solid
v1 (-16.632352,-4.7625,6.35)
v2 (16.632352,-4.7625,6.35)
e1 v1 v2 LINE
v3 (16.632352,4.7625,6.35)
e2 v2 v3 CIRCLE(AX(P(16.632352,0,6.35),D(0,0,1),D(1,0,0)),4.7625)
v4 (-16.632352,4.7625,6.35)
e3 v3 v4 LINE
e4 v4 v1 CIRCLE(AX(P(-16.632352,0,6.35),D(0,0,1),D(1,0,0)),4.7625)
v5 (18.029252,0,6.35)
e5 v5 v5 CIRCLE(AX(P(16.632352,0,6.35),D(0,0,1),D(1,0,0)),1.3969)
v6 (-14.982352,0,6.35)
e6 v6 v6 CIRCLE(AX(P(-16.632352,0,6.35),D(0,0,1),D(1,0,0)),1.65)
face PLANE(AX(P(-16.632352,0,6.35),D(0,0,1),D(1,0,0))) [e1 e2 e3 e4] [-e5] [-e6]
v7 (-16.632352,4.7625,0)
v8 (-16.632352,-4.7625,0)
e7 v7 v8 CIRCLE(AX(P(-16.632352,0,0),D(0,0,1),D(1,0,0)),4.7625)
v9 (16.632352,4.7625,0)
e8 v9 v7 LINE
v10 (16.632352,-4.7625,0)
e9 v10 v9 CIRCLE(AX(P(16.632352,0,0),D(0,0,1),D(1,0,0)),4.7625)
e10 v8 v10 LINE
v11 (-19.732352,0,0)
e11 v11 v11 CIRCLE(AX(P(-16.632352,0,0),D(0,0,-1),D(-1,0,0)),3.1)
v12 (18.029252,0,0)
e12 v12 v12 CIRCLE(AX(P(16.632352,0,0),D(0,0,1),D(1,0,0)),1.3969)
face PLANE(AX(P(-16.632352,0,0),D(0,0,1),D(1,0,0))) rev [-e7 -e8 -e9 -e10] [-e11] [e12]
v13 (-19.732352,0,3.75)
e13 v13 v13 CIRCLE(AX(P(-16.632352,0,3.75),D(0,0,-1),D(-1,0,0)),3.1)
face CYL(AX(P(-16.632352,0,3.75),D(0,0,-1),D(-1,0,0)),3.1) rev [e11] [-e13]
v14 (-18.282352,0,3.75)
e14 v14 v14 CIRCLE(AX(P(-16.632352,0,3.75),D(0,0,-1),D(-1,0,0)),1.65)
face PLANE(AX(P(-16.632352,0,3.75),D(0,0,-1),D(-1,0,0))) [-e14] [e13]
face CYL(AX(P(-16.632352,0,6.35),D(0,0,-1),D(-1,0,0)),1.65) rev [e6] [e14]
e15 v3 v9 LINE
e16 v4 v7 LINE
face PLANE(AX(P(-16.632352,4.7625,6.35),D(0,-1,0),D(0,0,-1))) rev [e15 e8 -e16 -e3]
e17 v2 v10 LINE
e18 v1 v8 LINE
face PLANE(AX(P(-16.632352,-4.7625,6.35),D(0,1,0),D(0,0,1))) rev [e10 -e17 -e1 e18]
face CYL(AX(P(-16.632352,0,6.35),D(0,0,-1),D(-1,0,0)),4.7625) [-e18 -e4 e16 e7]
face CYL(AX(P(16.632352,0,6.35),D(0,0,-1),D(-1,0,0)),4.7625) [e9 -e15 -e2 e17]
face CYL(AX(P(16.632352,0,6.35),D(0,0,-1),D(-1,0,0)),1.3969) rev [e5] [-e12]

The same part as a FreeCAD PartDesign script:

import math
import FreeCAD as App
import Part
import Sketcher
from FreeCAD import Vector
Q = App.Units.Quantity

doc = App.newDocument("Part")
body = doc.addObject("PartDesign::Body", "Body")

# Sketch on XY plane
sketch1 = doc.addObject("Sketcher::SketchObject", "Sketch")
body.addObject(sketch1)
sketch1.AttachmentSupport = (doc.XY_Plane, [""])
sketch1.MapMode = "FlatFace"
sketch1.addGeometry(Part.LineSegment(Vector(16.6, 4.8, 0), Vector(-16.6, 4.8, 0)), False)
sketch1.addGeometry(Part.ArcOfCircle(Part.Circle(Vector(-16.6, 0, 0), Vector(0, 0, 1), 4.8), math.radians(90), math.radians(270)), False)
sketch1.addGeometry(Part.LineSegment(Vector(-16.6, -4.8, 0), Vector(16.6, -4.8, 0)), False)
sketch1.addGeometry(Part.ArcOfCircle(Part.Circle(Vector(16.6, 0, 0), Vector(0, 0, 1), 4.8), math.radians(-90), math.radians(90)), False)
sketch1.addGeometry(Part.Circle(Vector(16.6, 0, 0), Vector(0, 0, 1), 1.4), False)
sketch1.addGeometry(Part.Circle(Vector(-16.6, 0, 0), Vector(0, 0, 1), 1.6), False)
sketch1.addConstraint(Sketcher.Constraint("Tangent", 0, 2, 1, 1))
sketch1.addConstraint(Sketcher.Constraint("Tangent", 1, 2, 2, 1))
sketch1.addConstraint(Sketcher.Constraint("Tangent", 2, 2, 3, 1))
sketch1.addConstraint(Sketcher.Constraint("Tangent", 3, 2, 0, 1))
sketch1.addConstraint(Sketcher.Constraint("Horizontal", 0))
sketch1.addConstraint(Sketcher.Constraint("Horizontal", 2))
sketch1.addConstraint(Sketcher.Constraint("Coincident", 4, 3, 3, 3))
sketch1.addConstraint(Sketcher.Constraint("Coincident", 5, 3, 1, 3))
sketch1.addConstraint(Sketcher.Constraint("Symmetric", 1, 3, 3, 3, -1, 1))
sketch1.addConstraint(Sketcher.Constraint("Diameter", 5, Q("3.3 mm")))
sketch1.addConstraint(Sketcher.Constraint("Diameter", 4, Q("2.7938 mm")))
sketch1.addConstraint(Sketcher.Constraint("Radius", 1, Q("4.7625 mm")))
sketch1.addConstraint(Sketcher.Constraint("DistanceX", 0, 2, 0, 1, Q("33.264704 mm")))
pad1 = doc.addObject("PartDesign::Pad", "Pad")
body.addObject(pad1)
pad1.Profile = sketch1
pad1.Length = 6.35

# Sketch on XY plane
sketch2 = doc.addObject("Sketcher::SketchObject", "Sketch001")
body.addObject(sketch2)
sketch2.AttachmentSupport = (doc.XY_Plane, [""])
sketch2.MapMode = "FlatFace"
sketch2.addGeometry(Part.Circle(Vector(-16.6, 0, 0), Vector(0, 0, 1), 3.1), False)
sketch2.addConstraint(Sketcher.Constraint("PointOnObject", 0, 3, -1))
sketch2.addConstraint(Sketcher.Constraint("Diameter", 0, Q("6.2 mm")))
sketch2.addConstraint(Sketcher.Constraint("DistanceX", 0, 3, -1, 1, Q("16.632352 mm")))
pocket1 = doc.addObject("PartDesign::Pocket", "Pocket")
body.addObject(pocket1)
pocket1.Profile = sketch2
pocket1.Length = 3.75
pocket1.Reversed = True

doc.recompute()
